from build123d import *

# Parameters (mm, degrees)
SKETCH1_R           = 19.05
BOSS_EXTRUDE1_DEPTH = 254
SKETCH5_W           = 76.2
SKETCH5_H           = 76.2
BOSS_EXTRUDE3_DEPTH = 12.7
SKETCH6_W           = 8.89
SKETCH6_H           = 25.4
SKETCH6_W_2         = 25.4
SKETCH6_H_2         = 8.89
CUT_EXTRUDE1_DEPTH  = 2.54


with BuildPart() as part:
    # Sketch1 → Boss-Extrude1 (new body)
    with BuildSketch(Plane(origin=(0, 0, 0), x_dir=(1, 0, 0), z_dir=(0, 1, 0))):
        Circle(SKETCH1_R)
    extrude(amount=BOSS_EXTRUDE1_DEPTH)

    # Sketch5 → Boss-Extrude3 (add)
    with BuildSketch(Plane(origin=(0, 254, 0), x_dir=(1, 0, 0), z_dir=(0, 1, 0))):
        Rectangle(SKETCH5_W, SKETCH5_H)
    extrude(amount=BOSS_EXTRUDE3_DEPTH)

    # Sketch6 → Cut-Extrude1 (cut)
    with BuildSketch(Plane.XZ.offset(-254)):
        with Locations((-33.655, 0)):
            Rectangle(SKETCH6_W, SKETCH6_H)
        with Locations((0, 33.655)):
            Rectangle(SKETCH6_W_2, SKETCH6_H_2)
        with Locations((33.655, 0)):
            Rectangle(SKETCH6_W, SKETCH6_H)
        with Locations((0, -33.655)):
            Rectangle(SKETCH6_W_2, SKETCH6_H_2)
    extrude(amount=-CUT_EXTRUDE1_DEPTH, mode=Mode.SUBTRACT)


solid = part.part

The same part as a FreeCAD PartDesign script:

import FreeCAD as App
import Part
import Sketcher
from FreeCAD import Vector
Q = App.Units.Quantity


def add_polygon(sketch, points):
    """Adds a closed chain of lines whose ends are joined by coincident constraints."""
    first, n = sketch.GeometryCount, len(points)
    for a, b in zip(points, points[1:] + points[:1]):
        sketch.addGeometry(Part.LineSegment(App.Vector(*a, 0), App.Vector(*b, 0)), False)
    for i in range(n):
        sketch.addConstraint(Sketcher.Constraint("Coincident", first + i, 2, first + (i + 1) % n, 1))

doc = App.newDocument("Part")
body = doc.addObject("PartDesign::Body", "Body")

sketch1 = body.newObject("Sketcher::SketchObject", "Sketch")
sketch1.AttachmentSupport = (doc.getObject("XZ_Plane"), [""])
sketch1.MapMode = "FlatFace"
sketch1.addGeometry(Part.Circle(Vector(0, 0, 0), Vector(0, 0, 1), 19), False)
sketch1.addConstraint(Sketcher.Constraint("Coincident", 0, 3, -1, 1))
sketch1.addConstraint(Sketcher.Constraint("Diameter", 0, Q("1.5 in")))
pad1 = body.newObject("PartDesign::Pad", "Pad")
pad1.Profile = sketch1
pad1.Length = Q("10 in")
pad1.Reversed = True

sketch2 = body.newObject("Sketcher::SketchObject", "Sketch001")
sketch2.AttachmentSupport = (doc.getObject("XZ_Plane"), [""])
sketch2.MapMode = "FlatFace"
sketch2.AttachmentOffset = App.Placement(Vector(0, 0, -10 * 25.4), App.Rotation())
add_polygon(sketch2, [(-38, -38), (-38, 38), (38, 38), (38, -38)])
sketch2.addConstraint(Sketcher.Constraint("Vertical", 0))
sketch2.addConstraint(Sketcher.Constraint("Horizontal", 1))
sketch2.addConstraint(Sketcher.Constraint("Vertical", 2))
sketch2.addConstraint(Sketcher.Constraint("Horizontal", 3))
sketch2.addConstraint(Sketcher.Constraint("Symmetric", 0, 2, 2, 2, -1, 1))
sketch2.addConstraint(Sketcher.Constraint("Equal", 3, 0))
sketch2.addConstraint(Sketcher.Constraint("DistanceX", 1, 1, 1, 2, Q("3 in")))
pad2 = body.newObject("PartDesign::Pad", "Pad001")
pad2.Profile = sketch2
pad2.Length = Q("0.5 in")
pad2.Reversed = True

sketch3 = body.newObject("Sketcher::SketchObject", "Sketch002")
sketch3.AttachmentSupport = (doc.getObject("XZ_Plane"), [""])
sketch3.MapMode = "FlatFace"
sketch3.AttachmentOffset = App.Placement(Vector(0, 0, -10 * 25.4), App.Rotation())
add_polygon(sketch3, [(-38, 13), (-38, -13), (-29, -13), (-29, 13)])
add_polygon(sketch3, [(-13, 38), (-13, 29), (13, 29), (13, 38)])
add_polygon(sketch3, [(29, 13), (29, -13), (38, -13), (38, 13)])
add_polygon(sketch3, [(-13, -29), (-13, -38), (13, -38), (13, -29)])
sketch3.addConstraint(Sketcher.Constraint("Vertical", 0))
sketch3.addConstraint(Sketcher.Constraint("Horizontal", 1))
sketch3.addConstraint(Sketcher.Constraint("Vertical", 2))
sketch3.addConstraint(Sketcher.Constraint("Horizontal", 3))
sketch3.addConstraint(Sketcher.Constraint("Vertical", 4))
sketch3.addConstraint(Sketcher.Constraint("Horizontal", 5))
sketch3.addConstraint(Sketcher.Constraint("Vertical", 6))
sketch3.addConstraint(Sketcher.Constraint("Horizontal", 7))
sketch3.addConstraint(Sketcher.Constraint("Vertical", 8))
sketch3.addConstraint(Sketcher.Constraint("Horizontal", 9))
sketch3.addConstraint(Sketcher.Constraint("Vertical", 10))
sketch3.addConstraint(Sketcher.Constraint("Horizontal", 11))
sketch3.addConstraint(Sketcher.Constraint("Vertical", 12))
sketch3.addConstraint(Sketcher.Constraint("Horizontal", 13))
sketch3.addConstraint(Sketcher.Constraint("Vertical", 14))
sketch3.addConstraint(Sketcher.Constraint("Horizontal", 15))
sketch3.addConstraint(Sketcher.Constraint("Symmetric", 2, 2, 8, 2, -1, 1))
sketch3.addConstraint(Sketcher.Constraint("Symmetric", 0, 2, 10, 2, -1, 1))
sketch3.addConstraint(Sketcher.Constraint("Symmetric", 6, 2, 12, 2, -1, 1))
sketch3.addConstraint(Sketcher.Constraint("Symmetric", 4, 2, 14, 2, -1, 1))
sketch3.addConstraint(Sketcher.Constraint("Horizontal", 1, 2, 8, 2))
sketch3.addConstraint(Sketcher.Constraint("Vertical", 7, 2, 12, 2))
sketch3.addConstraint(Sketcher.Constraint("Equal", 15, 0))
sketch3.addConstraint(Sketcher.Constraint("Equal", 11, 4))
sketch3.addConstraint(Sketcher.Constraint("DistanceX", 5, 1, 5, 2, Q("1 in")))
sketch3.addConstraint(Sketcher.Constraint("DistanceX", 3, 2, 4, 2, Q("1 in")))
sketch3.addConstraint(Sketcher.Constraint("DistanceY", 2, 2, 6, 2, Q("1 in")))
sketch3.addConstraint(Sketcher.Constraint("DistanceX", 1, 1, 1, 2, Q("0.35 in")))
pocket1 = body.newObject("PartDesign::Pocket", "Pocket")
pocket1.Profile = sketch3
pocket1.Length = Q("0.1 in")

doc.recompute()
